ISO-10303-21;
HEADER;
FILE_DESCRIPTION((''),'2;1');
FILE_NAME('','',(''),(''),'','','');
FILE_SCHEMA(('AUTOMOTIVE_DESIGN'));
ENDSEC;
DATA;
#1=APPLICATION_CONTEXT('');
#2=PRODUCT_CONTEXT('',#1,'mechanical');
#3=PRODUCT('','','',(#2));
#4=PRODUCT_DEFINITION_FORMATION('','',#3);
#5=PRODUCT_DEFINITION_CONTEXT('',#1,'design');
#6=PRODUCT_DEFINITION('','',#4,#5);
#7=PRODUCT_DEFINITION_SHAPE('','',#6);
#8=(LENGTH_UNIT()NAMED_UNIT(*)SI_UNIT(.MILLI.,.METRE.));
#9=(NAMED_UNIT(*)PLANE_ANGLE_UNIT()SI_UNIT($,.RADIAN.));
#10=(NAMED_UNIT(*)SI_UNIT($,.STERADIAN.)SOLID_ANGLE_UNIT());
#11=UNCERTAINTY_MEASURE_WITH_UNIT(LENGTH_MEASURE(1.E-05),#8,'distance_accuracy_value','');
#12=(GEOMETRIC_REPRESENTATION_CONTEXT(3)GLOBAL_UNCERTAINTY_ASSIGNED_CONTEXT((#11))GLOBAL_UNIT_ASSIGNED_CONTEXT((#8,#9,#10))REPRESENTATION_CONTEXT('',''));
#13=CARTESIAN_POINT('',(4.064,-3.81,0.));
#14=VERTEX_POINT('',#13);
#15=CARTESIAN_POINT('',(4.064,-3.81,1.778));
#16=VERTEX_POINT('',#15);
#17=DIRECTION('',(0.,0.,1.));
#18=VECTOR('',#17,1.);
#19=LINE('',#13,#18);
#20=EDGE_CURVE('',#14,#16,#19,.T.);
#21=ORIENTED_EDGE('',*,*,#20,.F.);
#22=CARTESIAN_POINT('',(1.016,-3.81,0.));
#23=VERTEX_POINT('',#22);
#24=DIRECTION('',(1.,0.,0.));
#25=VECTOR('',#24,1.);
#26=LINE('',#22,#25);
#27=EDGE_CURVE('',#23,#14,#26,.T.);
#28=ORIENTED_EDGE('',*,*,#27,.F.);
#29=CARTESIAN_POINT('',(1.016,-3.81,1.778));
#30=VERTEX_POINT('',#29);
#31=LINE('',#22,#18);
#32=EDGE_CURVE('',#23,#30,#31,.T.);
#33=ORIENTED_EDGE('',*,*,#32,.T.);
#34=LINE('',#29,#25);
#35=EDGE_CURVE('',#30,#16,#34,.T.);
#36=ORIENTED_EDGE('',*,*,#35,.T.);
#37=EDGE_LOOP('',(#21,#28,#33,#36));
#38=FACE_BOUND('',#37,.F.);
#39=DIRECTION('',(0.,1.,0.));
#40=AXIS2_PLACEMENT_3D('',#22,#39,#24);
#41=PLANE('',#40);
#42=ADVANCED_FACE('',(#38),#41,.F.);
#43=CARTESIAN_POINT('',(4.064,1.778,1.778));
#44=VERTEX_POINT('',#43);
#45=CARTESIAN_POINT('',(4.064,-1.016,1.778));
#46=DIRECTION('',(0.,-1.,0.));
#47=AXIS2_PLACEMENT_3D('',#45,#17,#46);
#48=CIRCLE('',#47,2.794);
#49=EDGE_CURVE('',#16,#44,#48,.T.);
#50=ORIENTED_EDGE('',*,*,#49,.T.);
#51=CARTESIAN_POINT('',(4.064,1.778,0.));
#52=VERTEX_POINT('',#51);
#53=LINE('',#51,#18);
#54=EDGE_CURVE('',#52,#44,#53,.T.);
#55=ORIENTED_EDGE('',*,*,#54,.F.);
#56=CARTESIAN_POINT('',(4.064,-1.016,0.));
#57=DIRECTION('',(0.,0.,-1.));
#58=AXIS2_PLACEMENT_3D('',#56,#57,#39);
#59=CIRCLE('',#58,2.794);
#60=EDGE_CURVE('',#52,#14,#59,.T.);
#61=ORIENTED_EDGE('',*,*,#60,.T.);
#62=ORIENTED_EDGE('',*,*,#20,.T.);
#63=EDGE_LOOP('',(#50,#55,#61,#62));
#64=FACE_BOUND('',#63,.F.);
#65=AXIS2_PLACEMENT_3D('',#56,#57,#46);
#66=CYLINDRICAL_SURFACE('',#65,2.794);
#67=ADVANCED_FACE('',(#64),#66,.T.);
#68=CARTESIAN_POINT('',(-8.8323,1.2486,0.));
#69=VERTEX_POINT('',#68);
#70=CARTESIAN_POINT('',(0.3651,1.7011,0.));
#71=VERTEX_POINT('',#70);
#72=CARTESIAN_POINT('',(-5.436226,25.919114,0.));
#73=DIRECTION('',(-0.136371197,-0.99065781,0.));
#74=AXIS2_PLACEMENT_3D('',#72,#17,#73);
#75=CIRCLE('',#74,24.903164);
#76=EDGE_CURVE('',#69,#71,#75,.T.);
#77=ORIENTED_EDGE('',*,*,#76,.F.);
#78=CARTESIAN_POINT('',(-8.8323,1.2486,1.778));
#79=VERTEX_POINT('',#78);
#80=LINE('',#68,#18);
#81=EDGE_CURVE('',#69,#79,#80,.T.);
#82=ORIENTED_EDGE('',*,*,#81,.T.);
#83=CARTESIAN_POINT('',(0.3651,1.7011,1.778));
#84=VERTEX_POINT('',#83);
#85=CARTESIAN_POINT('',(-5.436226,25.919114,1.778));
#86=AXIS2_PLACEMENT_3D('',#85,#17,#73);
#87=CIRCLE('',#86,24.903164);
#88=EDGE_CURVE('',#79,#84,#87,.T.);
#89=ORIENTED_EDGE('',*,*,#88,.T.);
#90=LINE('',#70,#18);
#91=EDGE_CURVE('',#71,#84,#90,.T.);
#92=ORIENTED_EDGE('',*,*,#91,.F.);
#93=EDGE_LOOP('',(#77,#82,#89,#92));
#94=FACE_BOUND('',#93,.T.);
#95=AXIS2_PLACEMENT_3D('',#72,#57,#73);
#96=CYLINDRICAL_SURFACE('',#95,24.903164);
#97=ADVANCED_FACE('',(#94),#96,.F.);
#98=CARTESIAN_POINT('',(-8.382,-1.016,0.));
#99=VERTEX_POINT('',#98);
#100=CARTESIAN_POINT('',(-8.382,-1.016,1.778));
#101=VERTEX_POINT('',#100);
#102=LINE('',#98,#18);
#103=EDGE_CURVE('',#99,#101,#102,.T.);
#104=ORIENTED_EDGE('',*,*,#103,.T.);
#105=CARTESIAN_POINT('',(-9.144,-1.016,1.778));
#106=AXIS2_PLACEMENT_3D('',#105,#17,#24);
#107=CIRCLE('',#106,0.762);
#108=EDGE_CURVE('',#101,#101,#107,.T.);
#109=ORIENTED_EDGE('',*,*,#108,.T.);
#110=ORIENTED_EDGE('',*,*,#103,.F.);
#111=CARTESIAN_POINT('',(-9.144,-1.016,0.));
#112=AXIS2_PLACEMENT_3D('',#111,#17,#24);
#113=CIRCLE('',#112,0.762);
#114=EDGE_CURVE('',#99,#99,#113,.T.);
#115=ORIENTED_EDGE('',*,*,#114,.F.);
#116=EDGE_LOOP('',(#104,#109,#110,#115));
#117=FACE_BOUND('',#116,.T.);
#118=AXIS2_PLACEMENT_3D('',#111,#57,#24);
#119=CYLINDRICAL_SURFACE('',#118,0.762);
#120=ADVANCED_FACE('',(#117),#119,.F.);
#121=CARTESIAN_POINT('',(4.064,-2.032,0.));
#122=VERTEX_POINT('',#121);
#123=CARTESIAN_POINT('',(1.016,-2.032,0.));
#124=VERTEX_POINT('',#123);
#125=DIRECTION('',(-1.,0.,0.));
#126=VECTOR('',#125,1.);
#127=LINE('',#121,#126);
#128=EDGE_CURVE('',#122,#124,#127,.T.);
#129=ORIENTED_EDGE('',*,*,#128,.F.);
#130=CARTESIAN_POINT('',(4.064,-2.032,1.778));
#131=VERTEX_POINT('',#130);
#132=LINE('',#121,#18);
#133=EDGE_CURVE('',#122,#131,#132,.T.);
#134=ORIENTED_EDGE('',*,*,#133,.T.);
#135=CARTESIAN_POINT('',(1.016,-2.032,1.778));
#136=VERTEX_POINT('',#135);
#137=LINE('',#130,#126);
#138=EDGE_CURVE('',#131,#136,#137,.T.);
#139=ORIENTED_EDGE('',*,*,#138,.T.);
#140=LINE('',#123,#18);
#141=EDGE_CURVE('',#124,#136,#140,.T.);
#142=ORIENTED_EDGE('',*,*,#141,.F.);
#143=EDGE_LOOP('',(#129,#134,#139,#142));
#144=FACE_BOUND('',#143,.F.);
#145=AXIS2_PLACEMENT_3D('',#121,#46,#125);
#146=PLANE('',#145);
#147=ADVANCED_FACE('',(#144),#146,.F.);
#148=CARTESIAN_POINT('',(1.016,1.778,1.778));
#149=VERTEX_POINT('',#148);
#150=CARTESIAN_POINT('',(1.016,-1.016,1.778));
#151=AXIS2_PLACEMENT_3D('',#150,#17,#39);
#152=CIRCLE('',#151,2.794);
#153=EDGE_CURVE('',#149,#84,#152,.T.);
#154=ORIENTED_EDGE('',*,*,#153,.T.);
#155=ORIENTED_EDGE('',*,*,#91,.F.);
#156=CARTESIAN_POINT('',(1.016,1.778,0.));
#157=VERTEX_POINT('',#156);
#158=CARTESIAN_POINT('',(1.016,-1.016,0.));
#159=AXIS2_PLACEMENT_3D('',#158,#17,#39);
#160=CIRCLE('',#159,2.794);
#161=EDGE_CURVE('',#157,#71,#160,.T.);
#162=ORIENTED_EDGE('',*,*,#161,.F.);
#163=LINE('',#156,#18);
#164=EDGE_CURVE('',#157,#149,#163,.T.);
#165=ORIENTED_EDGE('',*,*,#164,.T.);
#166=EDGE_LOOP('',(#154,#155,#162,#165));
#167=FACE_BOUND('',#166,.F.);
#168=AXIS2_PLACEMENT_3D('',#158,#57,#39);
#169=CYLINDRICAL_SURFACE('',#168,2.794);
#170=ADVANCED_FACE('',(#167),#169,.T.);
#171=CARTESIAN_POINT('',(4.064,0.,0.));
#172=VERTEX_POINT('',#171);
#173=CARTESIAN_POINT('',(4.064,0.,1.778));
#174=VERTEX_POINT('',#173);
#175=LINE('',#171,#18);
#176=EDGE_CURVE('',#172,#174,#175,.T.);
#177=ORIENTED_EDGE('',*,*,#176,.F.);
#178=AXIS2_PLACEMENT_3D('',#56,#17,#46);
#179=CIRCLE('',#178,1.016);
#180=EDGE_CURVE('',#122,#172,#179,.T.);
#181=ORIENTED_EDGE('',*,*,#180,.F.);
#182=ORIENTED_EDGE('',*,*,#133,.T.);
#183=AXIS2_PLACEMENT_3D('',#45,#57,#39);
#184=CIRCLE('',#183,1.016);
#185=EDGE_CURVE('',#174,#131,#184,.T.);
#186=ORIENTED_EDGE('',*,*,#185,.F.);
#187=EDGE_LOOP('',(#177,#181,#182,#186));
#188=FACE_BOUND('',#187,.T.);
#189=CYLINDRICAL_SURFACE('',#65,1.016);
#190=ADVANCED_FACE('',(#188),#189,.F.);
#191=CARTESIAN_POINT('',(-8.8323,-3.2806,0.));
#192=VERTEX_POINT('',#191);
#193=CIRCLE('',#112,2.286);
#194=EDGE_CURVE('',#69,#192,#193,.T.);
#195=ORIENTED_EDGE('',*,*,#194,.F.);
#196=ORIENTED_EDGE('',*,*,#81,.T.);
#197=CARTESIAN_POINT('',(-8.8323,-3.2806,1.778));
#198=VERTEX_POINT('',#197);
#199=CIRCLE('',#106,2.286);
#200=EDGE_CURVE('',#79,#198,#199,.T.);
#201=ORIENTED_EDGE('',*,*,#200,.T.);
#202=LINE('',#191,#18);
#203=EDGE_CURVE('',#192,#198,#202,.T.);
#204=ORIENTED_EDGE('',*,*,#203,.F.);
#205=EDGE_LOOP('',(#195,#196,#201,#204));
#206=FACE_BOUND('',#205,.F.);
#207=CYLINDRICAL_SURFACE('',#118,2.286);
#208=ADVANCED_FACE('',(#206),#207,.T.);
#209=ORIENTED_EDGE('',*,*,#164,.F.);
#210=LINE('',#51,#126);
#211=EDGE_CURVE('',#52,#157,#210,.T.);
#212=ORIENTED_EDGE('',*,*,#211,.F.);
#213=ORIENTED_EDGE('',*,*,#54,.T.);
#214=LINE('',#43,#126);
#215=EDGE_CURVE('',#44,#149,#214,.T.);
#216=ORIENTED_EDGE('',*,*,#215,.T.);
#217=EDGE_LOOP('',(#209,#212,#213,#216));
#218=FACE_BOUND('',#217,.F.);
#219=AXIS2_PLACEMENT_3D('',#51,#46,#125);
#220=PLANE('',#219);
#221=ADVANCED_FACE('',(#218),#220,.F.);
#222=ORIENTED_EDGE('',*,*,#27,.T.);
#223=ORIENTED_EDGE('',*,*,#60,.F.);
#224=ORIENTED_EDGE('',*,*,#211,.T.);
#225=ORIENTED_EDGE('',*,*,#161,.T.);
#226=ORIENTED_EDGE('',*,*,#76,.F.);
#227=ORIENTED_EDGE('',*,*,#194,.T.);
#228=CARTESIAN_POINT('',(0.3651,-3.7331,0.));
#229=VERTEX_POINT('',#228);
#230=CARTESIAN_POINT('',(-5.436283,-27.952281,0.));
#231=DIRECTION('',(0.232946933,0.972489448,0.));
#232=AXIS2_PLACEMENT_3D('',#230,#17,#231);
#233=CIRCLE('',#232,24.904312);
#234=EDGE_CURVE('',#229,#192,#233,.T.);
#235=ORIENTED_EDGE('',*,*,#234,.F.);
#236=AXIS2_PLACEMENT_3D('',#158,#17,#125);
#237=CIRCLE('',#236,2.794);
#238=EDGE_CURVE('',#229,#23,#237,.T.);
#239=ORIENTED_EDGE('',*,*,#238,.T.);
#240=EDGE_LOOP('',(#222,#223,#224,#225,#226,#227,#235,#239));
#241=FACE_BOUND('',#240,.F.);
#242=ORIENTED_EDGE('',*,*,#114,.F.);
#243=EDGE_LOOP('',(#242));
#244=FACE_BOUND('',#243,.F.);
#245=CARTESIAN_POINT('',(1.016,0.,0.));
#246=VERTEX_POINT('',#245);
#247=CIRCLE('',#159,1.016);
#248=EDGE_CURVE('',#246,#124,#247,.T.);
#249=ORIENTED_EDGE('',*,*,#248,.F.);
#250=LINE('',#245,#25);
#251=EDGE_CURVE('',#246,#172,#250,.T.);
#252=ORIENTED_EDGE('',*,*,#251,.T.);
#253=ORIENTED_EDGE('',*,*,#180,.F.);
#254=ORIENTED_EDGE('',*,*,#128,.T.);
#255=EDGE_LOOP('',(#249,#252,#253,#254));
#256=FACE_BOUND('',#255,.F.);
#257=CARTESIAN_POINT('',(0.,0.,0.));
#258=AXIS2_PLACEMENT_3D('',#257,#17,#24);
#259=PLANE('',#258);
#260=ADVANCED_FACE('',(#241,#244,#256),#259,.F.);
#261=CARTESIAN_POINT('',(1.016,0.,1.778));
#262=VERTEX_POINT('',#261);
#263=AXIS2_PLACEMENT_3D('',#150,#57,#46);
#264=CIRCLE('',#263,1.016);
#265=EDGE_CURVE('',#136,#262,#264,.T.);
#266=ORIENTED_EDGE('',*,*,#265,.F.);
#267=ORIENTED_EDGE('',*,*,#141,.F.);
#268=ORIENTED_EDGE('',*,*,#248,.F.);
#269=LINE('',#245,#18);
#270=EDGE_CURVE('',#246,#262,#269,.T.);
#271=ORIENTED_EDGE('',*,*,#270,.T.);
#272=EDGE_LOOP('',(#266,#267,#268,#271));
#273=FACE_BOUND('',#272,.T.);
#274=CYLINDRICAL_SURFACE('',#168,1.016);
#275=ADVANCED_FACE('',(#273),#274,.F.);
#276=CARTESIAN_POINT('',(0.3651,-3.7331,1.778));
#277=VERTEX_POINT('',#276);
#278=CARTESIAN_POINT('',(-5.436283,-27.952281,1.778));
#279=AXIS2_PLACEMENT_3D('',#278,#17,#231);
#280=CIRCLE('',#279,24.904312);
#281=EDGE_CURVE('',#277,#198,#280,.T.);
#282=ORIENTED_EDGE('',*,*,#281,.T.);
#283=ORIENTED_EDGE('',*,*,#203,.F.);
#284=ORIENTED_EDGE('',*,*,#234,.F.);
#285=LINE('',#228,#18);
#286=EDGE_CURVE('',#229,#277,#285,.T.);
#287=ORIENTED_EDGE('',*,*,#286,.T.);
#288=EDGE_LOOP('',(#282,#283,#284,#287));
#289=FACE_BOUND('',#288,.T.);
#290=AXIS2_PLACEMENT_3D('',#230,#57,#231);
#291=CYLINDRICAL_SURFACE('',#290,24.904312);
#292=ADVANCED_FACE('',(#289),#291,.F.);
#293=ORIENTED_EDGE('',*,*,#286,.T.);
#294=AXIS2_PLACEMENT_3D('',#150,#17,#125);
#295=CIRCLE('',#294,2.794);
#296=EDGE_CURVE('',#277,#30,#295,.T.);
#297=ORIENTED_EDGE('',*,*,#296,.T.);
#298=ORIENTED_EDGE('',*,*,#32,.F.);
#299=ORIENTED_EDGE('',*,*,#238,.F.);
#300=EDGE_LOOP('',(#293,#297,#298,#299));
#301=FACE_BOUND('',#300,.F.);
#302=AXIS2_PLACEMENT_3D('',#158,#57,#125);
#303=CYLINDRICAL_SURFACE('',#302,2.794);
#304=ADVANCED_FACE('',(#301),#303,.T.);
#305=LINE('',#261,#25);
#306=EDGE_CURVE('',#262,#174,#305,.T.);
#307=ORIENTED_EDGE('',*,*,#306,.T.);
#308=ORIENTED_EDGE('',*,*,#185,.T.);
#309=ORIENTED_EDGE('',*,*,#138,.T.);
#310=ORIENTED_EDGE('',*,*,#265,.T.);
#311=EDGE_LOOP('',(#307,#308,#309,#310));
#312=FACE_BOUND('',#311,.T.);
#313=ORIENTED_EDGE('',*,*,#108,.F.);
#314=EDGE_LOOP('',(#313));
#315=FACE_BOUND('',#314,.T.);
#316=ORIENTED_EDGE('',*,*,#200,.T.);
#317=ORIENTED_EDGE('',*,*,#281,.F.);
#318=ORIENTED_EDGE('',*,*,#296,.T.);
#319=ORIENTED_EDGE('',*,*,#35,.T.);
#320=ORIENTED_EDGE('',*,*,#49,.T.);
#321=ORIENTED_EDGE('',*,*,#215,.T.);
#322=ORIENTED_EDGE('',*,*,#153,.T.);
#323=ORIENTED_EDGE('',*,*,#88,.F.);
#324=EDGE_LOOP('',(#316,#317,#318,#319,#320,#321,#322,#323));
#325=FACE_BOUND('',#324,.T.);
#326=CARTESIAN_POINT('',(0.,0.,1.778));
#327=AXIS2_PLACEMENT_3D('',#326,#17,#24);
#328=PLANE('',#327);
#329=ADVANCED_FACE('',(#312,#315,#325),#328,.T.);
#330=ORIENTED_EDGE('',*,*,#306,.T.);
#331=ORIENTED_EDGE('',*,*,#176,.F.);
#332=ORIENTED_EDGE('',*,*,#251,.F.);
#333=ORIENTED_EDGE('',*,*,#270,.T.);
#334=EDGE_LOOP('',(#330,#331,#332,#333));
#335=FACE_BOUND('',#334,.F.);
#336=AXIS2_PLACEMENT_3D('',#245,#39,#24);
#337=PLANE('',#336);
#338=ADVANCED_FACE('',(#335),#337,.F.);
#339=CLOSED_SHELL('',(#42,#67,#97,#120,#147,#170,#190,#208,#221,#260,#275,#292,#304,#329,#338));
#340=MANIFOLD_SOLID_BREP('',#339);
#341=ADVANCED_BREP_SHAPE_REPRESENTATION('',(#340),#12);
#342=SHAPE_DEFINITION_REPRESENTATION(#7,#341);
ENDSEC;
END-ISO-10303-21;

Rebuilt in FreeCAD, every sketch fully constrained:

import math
import FreeCAD as App
import Part
import Sketcher
Q = App.Units.Quantity

doc = App.newDocument("Part")
params = doc.addObject("Spreadsheet::Sheet", "Params")
for row, (alias, value) in enumerate([
    ("sketch1_diameter", "0.06 in"),
    ("sketch1_radius", "0.11 in"),
    ("sketch1_radius2", "0.04 in"),
    ("sketch1_radius3", "0.09 in"),
    ("pad1_length", "0.07 in"),
], start=1):
    params.set(f"A{row}", alias)
    params.set(f"B{row}", "=" + value)
    params.setAlias(f"B{row}", alias)

body = doc.addObject("PartDesign::Body", "Body")

# Sketch on XY plane
sketch1 = body.newObject("Sketcher::SketchObject", "Sketch")
sketch1.AttachmentSupport = (doc.getObject("XY_Plane"), [""])
sketch1.MapMode = "FlatFace"
sketch1.addGeometry([
    Part.ArcOfCircle(Part.Circle(App.Vector(1, -1, 0), App.Vector(0, 0, 1), 2.8), math.radians(-103.47), math.radians(-90)),  # 0
    Part.LineSegment(App.Vector(1, -3.8, 0), App.Vector(4.1, -3.8, 0)),  # 1
    Part.ArcOfCircle(Part.Circle(App.Vector(4.1, -1, 0), App.Vector(0, 0, 1), 2.8), math.radians(-90), math.radians(90)),  # 2
    Part.LineSegment(App.Vector(4.1, 1.8, 0), App.Vector(1, 1.8, 0)),  # 3
    Part.ArcOfCircle(Part.Circle(App.Vector(1, -1, 0), App.Vector(0, 0, 1), 2.8), math.radians(90), math.radians(103.47)),  # 4
    Part.ArcOfCircle(Part.Circle(App.Vector(-5.4, 25.9, 0), App.Vector(0, 0, 1), 24.9), math.radians(-98), math.radians(-77)),  # 5
    Part.ArcOfCircle(Part.Circle(App.Vector(-9.1, -1, 0), App.Vector(0, 0, 1), 2.3), math.radians(82), math.radians(278)),  # 6
    Part.ArcOfCircle(Part.Circle(App.Vector(-5.4, -28, 0), App.Vector(0, 0, 1), 24.9), math.radians(77), math.radians(98)),  # 7
    Part.LineSegment(App.Vector(1, 0, 0), App.Vector(4.1, 0, 0)),  # 8
    Part.ArcOfCircle(Part.Circle(App.Vector(4.1, -1, 0), App.Vector(0, 0, 1), 1), math.radians(-90), math.radians(90)),  # 9
    Part.LineSegment(App.Vector(4.1, -2, 0), App.Vector(1, -2, 0)),  # 10
    Part.ArcOfCircle(Part.Circle(App.Vector(1, -1, 0), App.Vector(0, 0, 1), 1), math.radians(90), math.radians(270)),  # 11
    Part.Circle(App.Vector(-9.1, -1, 0), App.Vector(0, 0, 1), 0.8),  # 12
], False)
sketch1.addConstraint([
    Sketcher.Constraint("Tangent", 0, 2, 1, 1),
    Sketcher.Constraint("Tangent", 1, 2, 2, 1),
    Sketcher.Constraint("Tangent", 2, 2, 3, 1),
    Sketcher.Constraint("Tangent", 3, 2, 4, 1),
    Sketcher.Constraint("Tangent", 4, 2, 5, 2),
    Sketcher.Constraint("Tangent", 5, 1, 6, 1),
    Sketcher.Constraint("Tangent", 6, 2, 7, 2),
    Sketcher.Constraint("Tangent", 7, 1, 0, 1),
    Sketcher.Constraint("Tangent", 8, 2, 9, 2),
    Sketcher.Constraint("Tangent", 9, 1, 10, 1),
    Sketcher.Constraint("Tangent", 10, 2, 11, 2),
    Sketcher.Constraint("Tangent", 11, 1, 8, 1),
    Sketcher.Constraint("Horizontal", 1),
    Sketcher.Constraint("Horizontal", 3),
    Sketcher.Constraint("Horizontal", 8),
    Sketcher.Constraint("Horizontal", 10),
    Sketcher.Constraint("Coincident", 4, 3, 0, 3),
    Sketcher.Constraint("Coincident", 9, 3, 2, 3),
    Sketcher.Constraint("Coincident", 11, 3, 0, 3),
    Sketcher.Constraint("Coincident", 12, 3, 6, 3),
    Sketcher.Constraint("Equal", 5, 7),
    Sketcher.Constraint("PointOnObject", 8, 2, -1),
    Sketcher.Constraint("Horizontal", 4, 3, 6, 3),
    Sketcher.Constraint("Diameter", 12, Q("0.06 in")),
    Sketcher.Constraint("Radius", 0, Q("0.11 in")),
    Sketcher.Constraint("Radius", 9, Q("0.04 in")),
    Sketcher.Constraint("DistanceX", -1, 1, 0, 3, Q("0.04 in")),
    Sketcher.Constraint("DistanceX", -1, 1, 2, 3, Q("0.16 in")),
    Sketcher.Constraint("Radius", 6, Q("0.09 in")),
    Sketcher.Constraint("DistanceX", 6, 3, 0, 3, Q("0.4 in")),
    Sketcher.Constraint("Radius", 5, Q("24.9037 mm")),
])
sketch1.setExpression("Constraints[23]", "Params.sketch1_diameter")
sketch1.setExpression("Constraints[24]", "Params.sketch1_radius")
sketch1.setExpression("Constraints[25]", "Params.sketch1_radius2")
sketch1.setExpression("Constraints[28]", "Params.sketch1_radius3")
pad1 = body.newObject("PartDesign::Pad", "Pad")
pad1.Profile = sketch1
pad1.setExpression("Length", "Params.pad1_length")

doc.recompute()
